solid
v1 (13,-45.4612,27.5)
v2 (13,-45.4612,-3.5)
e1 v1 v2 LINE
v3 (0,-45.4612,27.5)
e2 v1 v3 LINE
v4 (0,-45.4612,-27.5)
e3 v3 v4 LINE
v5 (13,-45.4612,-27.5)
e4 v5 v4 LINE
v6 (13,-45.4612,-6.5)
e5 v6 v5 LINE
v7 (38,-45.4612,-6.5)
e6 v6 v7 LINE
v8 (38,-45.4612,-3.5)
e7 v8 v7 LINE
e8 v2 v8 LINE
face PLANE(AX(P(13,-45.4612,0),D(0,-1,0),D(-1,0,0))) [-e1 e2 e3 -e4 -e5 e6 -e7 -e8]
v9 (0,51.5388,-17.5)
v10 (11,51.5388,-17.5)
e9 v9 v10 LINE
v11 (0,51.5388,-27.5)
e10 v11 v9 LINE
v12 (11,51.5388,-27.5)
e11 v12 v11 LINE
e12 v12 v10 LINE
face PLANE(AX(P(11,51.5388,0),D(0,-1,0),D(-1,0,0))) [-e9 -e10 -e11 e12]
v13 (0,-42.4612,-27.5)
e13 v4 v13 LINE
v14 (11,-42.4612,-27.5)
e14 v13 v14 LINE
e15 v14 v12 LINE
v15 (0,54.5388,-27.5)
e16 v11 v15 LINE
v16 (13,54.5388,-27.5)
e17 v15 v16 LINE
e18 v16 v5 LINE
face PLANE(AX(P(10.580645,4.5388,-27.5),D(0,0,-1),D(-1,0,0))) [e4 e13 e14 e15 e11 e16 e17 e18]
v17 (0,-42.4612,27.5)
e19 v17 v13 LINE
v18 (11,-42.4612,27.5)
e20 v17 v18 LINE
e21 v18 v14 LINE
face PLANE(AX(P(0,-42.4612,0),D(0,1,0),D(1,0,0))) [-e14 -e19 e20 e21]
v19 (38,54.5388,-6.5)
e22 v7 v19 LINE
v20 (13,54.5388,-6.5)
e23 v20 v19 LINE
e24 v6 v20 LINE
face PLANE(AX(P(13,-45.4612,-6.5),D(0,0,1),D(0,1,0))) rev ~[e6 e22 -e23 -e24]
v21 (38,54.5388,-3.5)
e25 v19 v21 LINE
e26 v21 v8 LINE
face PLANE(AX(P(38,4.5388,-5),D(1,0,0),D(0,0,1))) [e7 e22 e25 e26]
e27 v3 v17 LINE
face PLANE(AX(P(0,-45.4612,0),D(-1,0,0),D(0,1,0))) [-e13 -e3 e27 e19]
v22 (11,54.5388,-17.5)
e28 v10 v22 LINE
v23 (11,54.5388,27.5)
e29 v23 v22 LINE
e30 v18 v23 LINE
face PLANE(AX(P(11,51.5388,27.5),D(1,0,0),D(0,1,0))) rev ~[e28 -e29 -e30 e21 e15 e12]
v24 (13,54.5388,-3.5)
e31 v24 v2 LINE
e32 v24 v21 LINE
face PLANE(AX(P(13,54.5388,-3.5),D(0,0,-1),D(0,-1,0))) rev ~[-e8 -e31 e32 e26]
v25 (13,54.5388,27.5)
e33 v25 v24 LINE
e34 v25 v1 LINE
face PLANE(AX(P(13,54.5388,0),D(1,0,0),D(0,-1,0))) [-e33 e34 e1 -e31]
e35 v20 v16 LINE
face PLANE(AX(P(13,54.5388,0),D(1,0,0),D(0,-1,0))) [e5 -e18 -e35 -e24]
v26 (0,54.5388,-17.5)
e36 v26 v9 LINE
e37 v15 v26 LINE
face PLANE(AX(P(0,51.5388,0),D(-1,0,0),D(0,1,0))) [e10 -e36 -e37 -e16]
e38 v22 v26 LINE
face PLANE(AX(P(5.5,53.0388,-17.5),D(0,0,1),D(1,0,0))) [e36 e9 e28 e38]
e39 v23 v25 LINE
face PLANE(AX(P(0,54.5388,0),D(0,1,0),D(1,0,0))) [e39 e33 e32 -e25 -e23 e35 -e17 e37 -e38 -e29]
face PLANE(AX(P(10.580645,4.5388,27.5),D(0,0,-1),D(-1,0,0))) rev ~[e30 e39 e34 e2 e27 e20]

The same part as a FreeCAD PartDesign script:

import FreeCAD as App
import Part
import Sketcher
from FreeCAD import Vector

doc = App.newDocument("Part")
params = doc.addObject("Spreadsheet::Sheet", "Params")
for row, (alias, value) in enumerate([
    ("sketch1_width", "13 mm"),
    ("sketch1_width2", "11 mm"),
    ("sketch1_height", "3 mm"),
    ("sketch1_height2", "94 mm"),
    ("pad1_length", "55 mm"),
    ("sketch2_width", "100 mm"),
    ("sketch2_height", "3 mm"),
    ("pad2_length", "25 mm"),
    ("sketch3_width", "11 mm"),
    ("sketch3_height", "3 mm"),
    ("pocket1_length", "45 mm"),
], start=1):
    params.set(f"A{row}", alias)
    params.set(f"B{row}", "=" + value)
    params.setAlias(f"B{row}", alias)

body = doc.addObject("PartDesign::Body", "Body")

sketch1 = body.newObject("Sketcher::SketchObject", "Sketch")
sketch1.AttachmentSupport = (doc.getObject("XY_Plane"), [""])
sketch1.MapMode = "FlatFace"
sketch1.addGeometry([
    Part.LineSegment(Vector(13, 54.5388, 0), Vector(0, 54.5388, 0)),
    Part.LineSegment(Vector(0, 54.5388, 0), Vector(0, 51.5388, 0)),
    Part.LineSegment(Vector(0, 51.5388, 0), Vector(11, 51.5388, 0)),
    Part.LineSegment(Vector(11, 51.5388, 0), Vector(11, -42.4612, 0)),
    Part.LineSegment(Vector(11, -42.4612, 0), Vector(0, -42.4612, 0)),
    Part.LineSegment(Vector(0, -42.4612, 0), Vector(0, -45.4612, 0)),
    Part.LineSegment(Vector(0, -45.4612, 0), Vector(13, -45.4612, 0)),
    Part.LineSegment(Vector(13, -45.4612, 0), Vector(13, 54.5388, 0)),
], False)
sketch1.addConstraint([
    Sketcher.Constraint("Coincident", 0, 2, 1, 1),
    Sketcher.Constraint("Coincident", 1, 2, 2, 1),
    Sketcher.Constraint("Coincident", 2, 2, 3, 1),
    Sketcher.Constraint("Coincident", 3, 2, 4, 1),
    Sketcher.Constraint("Coincident", 4, 2, 5, 1),
    Sketcher.Constraint("Coincident", 5, 2, 6, 1),
    Sketcher.Constraint("Coincident", 6, 2, 7, 1),
    Sketcher.Constraint("Coincident", 7, 2, 0, 1),
    Sketcher.Constraint("Horizontal", 0),
    Sketcher.Constraint("Vertical", 1),
    Sketcher.Constraint("Horizontal", 2),
    Sketcher.Constraint("Vertical", 3),
    Sketcher.Constraint("Horizontal", 4),
    Sketcher.Constraint("Vertical", 5),
    Sketcher.Constraint("Horizontal", 6),
    Sketcher.Constraint("Vertical", 7),
    Sketcher.Constraint("PointOnObject", 0, 2, -2),
    Sketcher.Constraint("PointOnObject", 4, 2, -2),
    Sketcher.Constraint("Equal", 1, 5),
    Sketcher.Constraint("DistanceX", 0, 2, 0, 1, 13.0),
    Sketcher.Constraint("DistanceX", 2, 1, 2, 2, 11.0),
    Sketcher.Constraint("DistanceY", 1, 2, 1, 1, 3.0),
    Sketcher.Constraint("DistanceY", 3, 2, 3, 1, 94.0),
    Sketcher.Constraint("DistanceY", -1, 1, 0, 2, 54.5388),
])
sketch1.setExpression("Constraints[19]", "Params.sketch1_width")
sketch1.setExpression("Constraints[20]", "Params.sketch1_width2")
sketch1.setExpression("Constraints[21]", "Params.sketch1_height")
sketch1.setExpression("Constraints[22]", "Params.sketch1_height2")
pad1 = body.newObject("PartDesign::Pad", "Pad")
pad1.Profile = sketch1
pad1.setExpression("Length", "Params.pad1_length")
pad1.Midplane = True

sketch2 = body.newObject("Sketcher::SketchObject", "Sketch001")
sketch2.AttachmentSupport = (doc.getObject("YZ_Plane"), [""])
sketch2.MapMode = "FlatFace"
sketch2.AttachmentOffset = App.Placement(Vector(0, 0, 13), App.Rotation())
sketch2.addGeometry([
    Part.LineSegment(Vector(-45.4612, -3.5, 0), Vector(-45.4612, -6.5, 0)),
    Part.LineSegment(Vector(-45.4612, -6.5, 0), Vector(54.5388, -6.5, 0)),
    Part.LineSegment(Vector(54.5388, -6.5, 0), Vector(54.5388, -3.5, 0)),
    Part.LineSegment(Vector(54.5388, -3.5, 0), Vector(-45.4612, -3.5, 0)),
], False)
sketch2.addConstraint([
    Sketcher.Constraint("Coincident", 0, 2, 1, 1),
    Sketcher.Constraint("Coincident", 1, 2, 2, 1),
    Sketcher.Constraint("Coincident", 2, 2, 3, 1),
    Sketcher.Constraint("Coincident", 3, 2, 0, 1),
    Sketcher.Constraint("Vertical", 0),
    Sketcher.Constraint("Horizontal", 1),
    Sketcher.Constraint("Vertical", 2),
    Sketcher.Constraint("Horizontal", 3),
    Sketcher.Constraint("DistanceX", 1, 1, 1, 2, 100.0),
    Sketcher.Constraint("DistanceY", 0, 2, 0, 1, 3.0),
    Sketcher.Constraint("DistanceY", 0, 2, -1, 1, 6.5),
    Sketcher.Constraint("DistanceX", 0, 2, -1, 1, 45.4612),
])
sketch2.setExpression("Constraints[8]", "Params.sketch2_width")
sketch2.setExpression("Constraints[9]", "Params.sketch2_height")
pad2 = body.newObject("PartDesign::Pad", "Pad001")
pad2.Profile = sketch2
pad2.setExpression("Length", "Params.pad2_length")

sketch3 = body.newObject("Sketcher::SketchObject", "Sketch002")
sketch3.AttachmentSupport = (doc.getObject("XY_Plane"), [""])
sketch3.MapMode = "FlatFace"
sketch3.AttachmentOffset = App.Placement(Vector(0, 0, 27.5), App.Rotation())
sketch3.addGeometry([
    Part.LineSegment(Vector(0, 54.5388, 0), Vector(0, 51.5388, 0)),
    Part.LineSegment(Vector(0, 51.5388, 0), Vector(11, 51.5388, 0)),
    Part.LineSegment(Vector(11, 51.5388, 0), Vector(11, 54.5388, 0)),
    Part.LineSegment(Vector(11, 54.5388, 0), Vector(0, 54.5388, 0)),
], False)
sketch3.addConstraint([
    Sketcher.Constraint("Coincident", 0, 2, 1, 1),
    Sketcher.Constraint("Coincident", 1, 2, 2, 1),
    Sketcher.Constraint("Coincident", 2, 2, 3, 1),
    Sketcher.Constraint("Coincident", 3, 2, 0, 1),
    Sketcher.Constraint("Vertical", 0),
    Sketcher.Constraint("Horizontal", 1),
    Sketcher.Constraint("Vertical", 2),
    Sketcher.Constraint("Horizontal", 3),
    Sketcher.Constraint("PointOnObject", 0, 2, -2),
    Sketcher.Constraint("DistanceX", 1, 1, 1, 2, 11.0),
    Sketcher.Constraint("DistanceY", 0, 2, 0, 1, 3.0),
    Sketcher.Constraint("DistanceY", -1, 1, 0, 2, 51.5388),
])
sketch3.setExpression("Constraints[9]", "Params.sketch3_width")
sketch3.setExpression("Constraints[10]", "Params.sketch3_height")
pocket1 = body.newObject("PartDesign::Pocket", "Pocket")
pocket1.Profile = sketch3
pocket1.setExpression("Length", "Params.pocket1_length")

doc.recompute()
